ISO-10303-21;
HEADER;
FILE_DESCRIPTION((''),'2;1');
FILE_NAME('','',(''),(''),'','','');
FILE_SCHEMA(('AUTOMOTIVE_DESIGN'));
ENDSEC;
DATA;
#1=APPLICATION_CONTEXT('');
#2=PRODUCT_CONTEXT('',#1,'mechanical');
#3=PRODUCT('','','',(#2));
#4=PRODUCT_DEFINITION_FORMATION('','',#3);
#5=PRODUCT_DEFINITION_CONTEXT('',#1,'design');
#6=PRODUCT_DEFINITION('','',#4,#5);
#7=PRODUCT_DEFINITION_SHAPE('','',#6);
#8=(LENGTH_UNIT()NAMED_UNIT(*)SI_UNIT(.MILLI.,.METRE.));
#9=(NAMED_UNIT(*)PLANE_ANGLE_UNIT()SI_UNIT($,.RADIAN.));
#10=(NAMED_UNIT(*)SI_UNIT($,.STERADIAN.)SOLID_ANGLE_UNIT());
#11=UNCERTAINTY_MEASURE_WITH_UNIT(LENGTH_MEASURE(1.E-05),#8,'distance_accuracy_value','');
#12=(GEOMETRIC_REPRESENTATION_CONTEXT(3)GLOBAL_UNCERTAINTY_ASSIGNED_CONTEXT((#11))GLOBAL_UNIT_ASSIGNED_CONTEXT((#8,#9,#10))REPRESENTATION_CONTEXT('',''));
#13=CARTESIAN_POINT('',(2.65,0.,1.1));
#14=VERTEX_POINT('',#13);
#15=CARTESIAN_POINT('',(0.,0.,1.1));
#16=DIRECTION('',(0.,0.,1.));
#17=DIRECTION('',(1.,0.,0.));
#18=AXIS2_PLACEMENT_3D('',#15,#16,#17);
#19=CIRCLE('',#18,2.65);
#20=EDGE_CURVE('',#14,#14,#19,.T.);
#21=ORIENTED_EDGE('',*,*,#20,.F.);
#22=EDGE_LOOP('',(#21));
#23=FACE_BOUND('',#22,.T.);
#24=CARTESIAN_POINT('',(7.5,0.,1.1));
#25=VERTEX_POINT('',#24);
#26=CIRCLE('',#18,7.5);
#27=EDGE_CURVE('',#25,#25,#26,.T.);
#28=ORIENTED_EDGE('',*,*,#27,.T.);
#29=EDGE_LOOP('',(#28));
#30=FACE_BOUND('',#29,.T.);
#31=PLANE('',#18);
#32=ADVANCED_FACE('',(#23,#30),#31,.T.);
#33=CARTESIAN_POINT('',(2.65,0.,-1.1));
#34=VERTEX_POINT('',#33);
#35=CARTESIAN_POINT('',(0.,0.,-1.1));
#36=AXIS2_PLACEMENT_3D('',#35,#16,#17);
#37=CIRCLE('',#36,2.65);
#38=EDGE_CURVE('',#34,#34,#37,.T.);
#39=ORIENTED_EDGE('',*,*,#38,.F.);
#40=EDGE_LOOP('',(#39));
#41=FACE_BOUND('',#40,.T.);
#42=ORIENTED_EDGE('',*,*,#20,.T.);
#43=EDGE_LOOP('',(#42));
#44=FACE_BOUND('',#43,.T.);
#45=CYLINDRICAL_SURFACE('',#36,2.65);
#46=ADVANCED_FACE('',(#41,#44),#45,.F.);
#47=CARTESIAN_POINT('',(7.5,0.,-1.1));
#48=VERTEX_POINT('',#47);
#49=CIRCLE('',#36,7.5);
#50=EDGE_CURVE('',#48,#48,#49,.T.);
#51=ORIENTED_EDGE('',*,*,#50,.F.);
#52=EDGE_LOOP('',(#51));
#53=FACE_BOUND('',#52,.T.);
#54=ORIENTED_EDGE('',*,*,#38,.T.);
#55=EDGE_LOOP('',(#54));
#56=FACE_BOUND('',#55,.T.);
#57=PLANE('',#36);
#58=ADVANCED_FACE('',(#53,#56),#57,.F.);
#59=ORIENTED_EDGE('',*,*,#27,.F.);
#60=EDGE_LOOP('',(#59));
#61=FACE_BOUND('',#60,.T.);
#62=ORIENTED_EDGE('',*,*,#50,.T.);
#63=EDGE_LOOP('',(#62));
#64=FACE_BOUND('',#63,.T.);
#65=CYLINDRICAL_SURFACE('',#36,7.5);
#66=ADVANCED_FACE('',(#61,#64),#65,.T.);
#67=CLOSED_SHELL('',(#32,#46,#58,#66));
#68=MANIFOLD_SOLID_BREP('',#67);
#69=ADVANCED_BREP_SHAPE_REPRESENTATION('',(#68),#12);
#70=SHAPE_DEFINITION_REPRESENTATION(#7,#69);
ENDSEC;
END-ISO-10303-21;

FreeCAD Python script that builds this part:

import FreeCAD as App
import Part
import Sketcher
Q = App.Units.Quantity

doc = App.newDocument("Part")
params = doc.addObject("Spreadsheet::Sheet", "Params")
for row, (alias, value) in enumerate([
    ("sketch1_diameter", "15 mm"),
    ("sketch1_diameter2", "5.3 mm"),
    ("pad1_length", "1.1 mm"),
    ("pad1_length2", "1.1 mm"),
], start=1):
    params.set(f"A{row}", alias)
    params.set(f"B{row}", "=" + value)
    params.setAlias(f"B{row}", alias)

body = doc.addObject("PartDesign::Body", "Body")

# Sketch on XY plane
sketch1 = body.newObject("Sketcher::SketchObject", "Sketch")
sketch1.AttachmentSupport = (doc.getObject("XY_Plane"), [""])
sketch1.MapMode = "FlatFace"
sketch1.addGeometry(Part.Circle(App.Vector(0, 0, 0), App.Vector(0, 0, 1), 7.5), False)
sketch1.addGeometry(Part.Circle(App.Vector(0, 0, 0), App.Vector(0, 0, 1), 2.6), False)
sketch1.addConstraint(Sketcher.Constraint("Coincident", 0, 3, -1, 1))
sketch1.addConstraint(Sketcher.Constraint("Coincident", 1, 3, -1, 1))
sketch1.addConstraint(Sketcher.Constraint("Diameter", 0, Q("15 mm")))
sketch1.addConstraint(Sketcher.Constraint("Diameter", 1, Q("5.3 mm")))
sketch1.setExpression("Constraints[2]", "Params.sketch1_diameter")
sketch1.setExpression("Constraints[3]", "Params.sketch1_diameter2")
pad1 = body.newObject("PartDesign::Pad", "Pad")
pad1.Profile = sketch1
pad1.Type = "TwoLengths"
pad1.setExpression("Length", "Params.pad1_length")
pad1.setExpression("Length2", "Params.pad1_length2")

doc.recompute()
